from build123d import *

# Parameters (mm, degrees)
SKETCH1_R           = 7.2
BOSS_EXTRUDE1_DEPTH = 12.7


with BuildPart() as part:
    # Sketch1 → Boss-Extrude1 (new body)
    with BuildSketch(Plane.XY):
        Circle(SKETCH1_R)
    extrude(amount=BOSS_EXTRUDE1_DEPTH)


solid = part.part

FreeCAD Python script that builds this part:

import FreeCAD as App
import Part
import Sketcher

doc = App.newDocument("Part")
body = doc.addObject("PartDesign::Body", "Body")

# Sketch on XY plane
sketch1 = doc.addObject("Sketcher::SketchObject", "Sketch")
body.addObject(sketch1)
sketch1.AttachmentSupport = (doc.XY_Plane, [""])
sketch1.MapMode = "FlatFace"
sketch1.addGeometry(Part.Circle(App.Vector(0, 0, 0), App.Vector(0, 0, 1), 7), False)
sketch1.addConstraint([
    Sketcher.Constraint("Coincident", 0, 3, -1, 1),
    Sketcher.Constraint("Diameter", 0, 14.4),
])
pad1 = doc.addObject("PartDesign::Pad", "Pad")
body.addObject(pad1)
pad1.Profile = sketch1
pad1.Length = 12.7

doc.recompute()
